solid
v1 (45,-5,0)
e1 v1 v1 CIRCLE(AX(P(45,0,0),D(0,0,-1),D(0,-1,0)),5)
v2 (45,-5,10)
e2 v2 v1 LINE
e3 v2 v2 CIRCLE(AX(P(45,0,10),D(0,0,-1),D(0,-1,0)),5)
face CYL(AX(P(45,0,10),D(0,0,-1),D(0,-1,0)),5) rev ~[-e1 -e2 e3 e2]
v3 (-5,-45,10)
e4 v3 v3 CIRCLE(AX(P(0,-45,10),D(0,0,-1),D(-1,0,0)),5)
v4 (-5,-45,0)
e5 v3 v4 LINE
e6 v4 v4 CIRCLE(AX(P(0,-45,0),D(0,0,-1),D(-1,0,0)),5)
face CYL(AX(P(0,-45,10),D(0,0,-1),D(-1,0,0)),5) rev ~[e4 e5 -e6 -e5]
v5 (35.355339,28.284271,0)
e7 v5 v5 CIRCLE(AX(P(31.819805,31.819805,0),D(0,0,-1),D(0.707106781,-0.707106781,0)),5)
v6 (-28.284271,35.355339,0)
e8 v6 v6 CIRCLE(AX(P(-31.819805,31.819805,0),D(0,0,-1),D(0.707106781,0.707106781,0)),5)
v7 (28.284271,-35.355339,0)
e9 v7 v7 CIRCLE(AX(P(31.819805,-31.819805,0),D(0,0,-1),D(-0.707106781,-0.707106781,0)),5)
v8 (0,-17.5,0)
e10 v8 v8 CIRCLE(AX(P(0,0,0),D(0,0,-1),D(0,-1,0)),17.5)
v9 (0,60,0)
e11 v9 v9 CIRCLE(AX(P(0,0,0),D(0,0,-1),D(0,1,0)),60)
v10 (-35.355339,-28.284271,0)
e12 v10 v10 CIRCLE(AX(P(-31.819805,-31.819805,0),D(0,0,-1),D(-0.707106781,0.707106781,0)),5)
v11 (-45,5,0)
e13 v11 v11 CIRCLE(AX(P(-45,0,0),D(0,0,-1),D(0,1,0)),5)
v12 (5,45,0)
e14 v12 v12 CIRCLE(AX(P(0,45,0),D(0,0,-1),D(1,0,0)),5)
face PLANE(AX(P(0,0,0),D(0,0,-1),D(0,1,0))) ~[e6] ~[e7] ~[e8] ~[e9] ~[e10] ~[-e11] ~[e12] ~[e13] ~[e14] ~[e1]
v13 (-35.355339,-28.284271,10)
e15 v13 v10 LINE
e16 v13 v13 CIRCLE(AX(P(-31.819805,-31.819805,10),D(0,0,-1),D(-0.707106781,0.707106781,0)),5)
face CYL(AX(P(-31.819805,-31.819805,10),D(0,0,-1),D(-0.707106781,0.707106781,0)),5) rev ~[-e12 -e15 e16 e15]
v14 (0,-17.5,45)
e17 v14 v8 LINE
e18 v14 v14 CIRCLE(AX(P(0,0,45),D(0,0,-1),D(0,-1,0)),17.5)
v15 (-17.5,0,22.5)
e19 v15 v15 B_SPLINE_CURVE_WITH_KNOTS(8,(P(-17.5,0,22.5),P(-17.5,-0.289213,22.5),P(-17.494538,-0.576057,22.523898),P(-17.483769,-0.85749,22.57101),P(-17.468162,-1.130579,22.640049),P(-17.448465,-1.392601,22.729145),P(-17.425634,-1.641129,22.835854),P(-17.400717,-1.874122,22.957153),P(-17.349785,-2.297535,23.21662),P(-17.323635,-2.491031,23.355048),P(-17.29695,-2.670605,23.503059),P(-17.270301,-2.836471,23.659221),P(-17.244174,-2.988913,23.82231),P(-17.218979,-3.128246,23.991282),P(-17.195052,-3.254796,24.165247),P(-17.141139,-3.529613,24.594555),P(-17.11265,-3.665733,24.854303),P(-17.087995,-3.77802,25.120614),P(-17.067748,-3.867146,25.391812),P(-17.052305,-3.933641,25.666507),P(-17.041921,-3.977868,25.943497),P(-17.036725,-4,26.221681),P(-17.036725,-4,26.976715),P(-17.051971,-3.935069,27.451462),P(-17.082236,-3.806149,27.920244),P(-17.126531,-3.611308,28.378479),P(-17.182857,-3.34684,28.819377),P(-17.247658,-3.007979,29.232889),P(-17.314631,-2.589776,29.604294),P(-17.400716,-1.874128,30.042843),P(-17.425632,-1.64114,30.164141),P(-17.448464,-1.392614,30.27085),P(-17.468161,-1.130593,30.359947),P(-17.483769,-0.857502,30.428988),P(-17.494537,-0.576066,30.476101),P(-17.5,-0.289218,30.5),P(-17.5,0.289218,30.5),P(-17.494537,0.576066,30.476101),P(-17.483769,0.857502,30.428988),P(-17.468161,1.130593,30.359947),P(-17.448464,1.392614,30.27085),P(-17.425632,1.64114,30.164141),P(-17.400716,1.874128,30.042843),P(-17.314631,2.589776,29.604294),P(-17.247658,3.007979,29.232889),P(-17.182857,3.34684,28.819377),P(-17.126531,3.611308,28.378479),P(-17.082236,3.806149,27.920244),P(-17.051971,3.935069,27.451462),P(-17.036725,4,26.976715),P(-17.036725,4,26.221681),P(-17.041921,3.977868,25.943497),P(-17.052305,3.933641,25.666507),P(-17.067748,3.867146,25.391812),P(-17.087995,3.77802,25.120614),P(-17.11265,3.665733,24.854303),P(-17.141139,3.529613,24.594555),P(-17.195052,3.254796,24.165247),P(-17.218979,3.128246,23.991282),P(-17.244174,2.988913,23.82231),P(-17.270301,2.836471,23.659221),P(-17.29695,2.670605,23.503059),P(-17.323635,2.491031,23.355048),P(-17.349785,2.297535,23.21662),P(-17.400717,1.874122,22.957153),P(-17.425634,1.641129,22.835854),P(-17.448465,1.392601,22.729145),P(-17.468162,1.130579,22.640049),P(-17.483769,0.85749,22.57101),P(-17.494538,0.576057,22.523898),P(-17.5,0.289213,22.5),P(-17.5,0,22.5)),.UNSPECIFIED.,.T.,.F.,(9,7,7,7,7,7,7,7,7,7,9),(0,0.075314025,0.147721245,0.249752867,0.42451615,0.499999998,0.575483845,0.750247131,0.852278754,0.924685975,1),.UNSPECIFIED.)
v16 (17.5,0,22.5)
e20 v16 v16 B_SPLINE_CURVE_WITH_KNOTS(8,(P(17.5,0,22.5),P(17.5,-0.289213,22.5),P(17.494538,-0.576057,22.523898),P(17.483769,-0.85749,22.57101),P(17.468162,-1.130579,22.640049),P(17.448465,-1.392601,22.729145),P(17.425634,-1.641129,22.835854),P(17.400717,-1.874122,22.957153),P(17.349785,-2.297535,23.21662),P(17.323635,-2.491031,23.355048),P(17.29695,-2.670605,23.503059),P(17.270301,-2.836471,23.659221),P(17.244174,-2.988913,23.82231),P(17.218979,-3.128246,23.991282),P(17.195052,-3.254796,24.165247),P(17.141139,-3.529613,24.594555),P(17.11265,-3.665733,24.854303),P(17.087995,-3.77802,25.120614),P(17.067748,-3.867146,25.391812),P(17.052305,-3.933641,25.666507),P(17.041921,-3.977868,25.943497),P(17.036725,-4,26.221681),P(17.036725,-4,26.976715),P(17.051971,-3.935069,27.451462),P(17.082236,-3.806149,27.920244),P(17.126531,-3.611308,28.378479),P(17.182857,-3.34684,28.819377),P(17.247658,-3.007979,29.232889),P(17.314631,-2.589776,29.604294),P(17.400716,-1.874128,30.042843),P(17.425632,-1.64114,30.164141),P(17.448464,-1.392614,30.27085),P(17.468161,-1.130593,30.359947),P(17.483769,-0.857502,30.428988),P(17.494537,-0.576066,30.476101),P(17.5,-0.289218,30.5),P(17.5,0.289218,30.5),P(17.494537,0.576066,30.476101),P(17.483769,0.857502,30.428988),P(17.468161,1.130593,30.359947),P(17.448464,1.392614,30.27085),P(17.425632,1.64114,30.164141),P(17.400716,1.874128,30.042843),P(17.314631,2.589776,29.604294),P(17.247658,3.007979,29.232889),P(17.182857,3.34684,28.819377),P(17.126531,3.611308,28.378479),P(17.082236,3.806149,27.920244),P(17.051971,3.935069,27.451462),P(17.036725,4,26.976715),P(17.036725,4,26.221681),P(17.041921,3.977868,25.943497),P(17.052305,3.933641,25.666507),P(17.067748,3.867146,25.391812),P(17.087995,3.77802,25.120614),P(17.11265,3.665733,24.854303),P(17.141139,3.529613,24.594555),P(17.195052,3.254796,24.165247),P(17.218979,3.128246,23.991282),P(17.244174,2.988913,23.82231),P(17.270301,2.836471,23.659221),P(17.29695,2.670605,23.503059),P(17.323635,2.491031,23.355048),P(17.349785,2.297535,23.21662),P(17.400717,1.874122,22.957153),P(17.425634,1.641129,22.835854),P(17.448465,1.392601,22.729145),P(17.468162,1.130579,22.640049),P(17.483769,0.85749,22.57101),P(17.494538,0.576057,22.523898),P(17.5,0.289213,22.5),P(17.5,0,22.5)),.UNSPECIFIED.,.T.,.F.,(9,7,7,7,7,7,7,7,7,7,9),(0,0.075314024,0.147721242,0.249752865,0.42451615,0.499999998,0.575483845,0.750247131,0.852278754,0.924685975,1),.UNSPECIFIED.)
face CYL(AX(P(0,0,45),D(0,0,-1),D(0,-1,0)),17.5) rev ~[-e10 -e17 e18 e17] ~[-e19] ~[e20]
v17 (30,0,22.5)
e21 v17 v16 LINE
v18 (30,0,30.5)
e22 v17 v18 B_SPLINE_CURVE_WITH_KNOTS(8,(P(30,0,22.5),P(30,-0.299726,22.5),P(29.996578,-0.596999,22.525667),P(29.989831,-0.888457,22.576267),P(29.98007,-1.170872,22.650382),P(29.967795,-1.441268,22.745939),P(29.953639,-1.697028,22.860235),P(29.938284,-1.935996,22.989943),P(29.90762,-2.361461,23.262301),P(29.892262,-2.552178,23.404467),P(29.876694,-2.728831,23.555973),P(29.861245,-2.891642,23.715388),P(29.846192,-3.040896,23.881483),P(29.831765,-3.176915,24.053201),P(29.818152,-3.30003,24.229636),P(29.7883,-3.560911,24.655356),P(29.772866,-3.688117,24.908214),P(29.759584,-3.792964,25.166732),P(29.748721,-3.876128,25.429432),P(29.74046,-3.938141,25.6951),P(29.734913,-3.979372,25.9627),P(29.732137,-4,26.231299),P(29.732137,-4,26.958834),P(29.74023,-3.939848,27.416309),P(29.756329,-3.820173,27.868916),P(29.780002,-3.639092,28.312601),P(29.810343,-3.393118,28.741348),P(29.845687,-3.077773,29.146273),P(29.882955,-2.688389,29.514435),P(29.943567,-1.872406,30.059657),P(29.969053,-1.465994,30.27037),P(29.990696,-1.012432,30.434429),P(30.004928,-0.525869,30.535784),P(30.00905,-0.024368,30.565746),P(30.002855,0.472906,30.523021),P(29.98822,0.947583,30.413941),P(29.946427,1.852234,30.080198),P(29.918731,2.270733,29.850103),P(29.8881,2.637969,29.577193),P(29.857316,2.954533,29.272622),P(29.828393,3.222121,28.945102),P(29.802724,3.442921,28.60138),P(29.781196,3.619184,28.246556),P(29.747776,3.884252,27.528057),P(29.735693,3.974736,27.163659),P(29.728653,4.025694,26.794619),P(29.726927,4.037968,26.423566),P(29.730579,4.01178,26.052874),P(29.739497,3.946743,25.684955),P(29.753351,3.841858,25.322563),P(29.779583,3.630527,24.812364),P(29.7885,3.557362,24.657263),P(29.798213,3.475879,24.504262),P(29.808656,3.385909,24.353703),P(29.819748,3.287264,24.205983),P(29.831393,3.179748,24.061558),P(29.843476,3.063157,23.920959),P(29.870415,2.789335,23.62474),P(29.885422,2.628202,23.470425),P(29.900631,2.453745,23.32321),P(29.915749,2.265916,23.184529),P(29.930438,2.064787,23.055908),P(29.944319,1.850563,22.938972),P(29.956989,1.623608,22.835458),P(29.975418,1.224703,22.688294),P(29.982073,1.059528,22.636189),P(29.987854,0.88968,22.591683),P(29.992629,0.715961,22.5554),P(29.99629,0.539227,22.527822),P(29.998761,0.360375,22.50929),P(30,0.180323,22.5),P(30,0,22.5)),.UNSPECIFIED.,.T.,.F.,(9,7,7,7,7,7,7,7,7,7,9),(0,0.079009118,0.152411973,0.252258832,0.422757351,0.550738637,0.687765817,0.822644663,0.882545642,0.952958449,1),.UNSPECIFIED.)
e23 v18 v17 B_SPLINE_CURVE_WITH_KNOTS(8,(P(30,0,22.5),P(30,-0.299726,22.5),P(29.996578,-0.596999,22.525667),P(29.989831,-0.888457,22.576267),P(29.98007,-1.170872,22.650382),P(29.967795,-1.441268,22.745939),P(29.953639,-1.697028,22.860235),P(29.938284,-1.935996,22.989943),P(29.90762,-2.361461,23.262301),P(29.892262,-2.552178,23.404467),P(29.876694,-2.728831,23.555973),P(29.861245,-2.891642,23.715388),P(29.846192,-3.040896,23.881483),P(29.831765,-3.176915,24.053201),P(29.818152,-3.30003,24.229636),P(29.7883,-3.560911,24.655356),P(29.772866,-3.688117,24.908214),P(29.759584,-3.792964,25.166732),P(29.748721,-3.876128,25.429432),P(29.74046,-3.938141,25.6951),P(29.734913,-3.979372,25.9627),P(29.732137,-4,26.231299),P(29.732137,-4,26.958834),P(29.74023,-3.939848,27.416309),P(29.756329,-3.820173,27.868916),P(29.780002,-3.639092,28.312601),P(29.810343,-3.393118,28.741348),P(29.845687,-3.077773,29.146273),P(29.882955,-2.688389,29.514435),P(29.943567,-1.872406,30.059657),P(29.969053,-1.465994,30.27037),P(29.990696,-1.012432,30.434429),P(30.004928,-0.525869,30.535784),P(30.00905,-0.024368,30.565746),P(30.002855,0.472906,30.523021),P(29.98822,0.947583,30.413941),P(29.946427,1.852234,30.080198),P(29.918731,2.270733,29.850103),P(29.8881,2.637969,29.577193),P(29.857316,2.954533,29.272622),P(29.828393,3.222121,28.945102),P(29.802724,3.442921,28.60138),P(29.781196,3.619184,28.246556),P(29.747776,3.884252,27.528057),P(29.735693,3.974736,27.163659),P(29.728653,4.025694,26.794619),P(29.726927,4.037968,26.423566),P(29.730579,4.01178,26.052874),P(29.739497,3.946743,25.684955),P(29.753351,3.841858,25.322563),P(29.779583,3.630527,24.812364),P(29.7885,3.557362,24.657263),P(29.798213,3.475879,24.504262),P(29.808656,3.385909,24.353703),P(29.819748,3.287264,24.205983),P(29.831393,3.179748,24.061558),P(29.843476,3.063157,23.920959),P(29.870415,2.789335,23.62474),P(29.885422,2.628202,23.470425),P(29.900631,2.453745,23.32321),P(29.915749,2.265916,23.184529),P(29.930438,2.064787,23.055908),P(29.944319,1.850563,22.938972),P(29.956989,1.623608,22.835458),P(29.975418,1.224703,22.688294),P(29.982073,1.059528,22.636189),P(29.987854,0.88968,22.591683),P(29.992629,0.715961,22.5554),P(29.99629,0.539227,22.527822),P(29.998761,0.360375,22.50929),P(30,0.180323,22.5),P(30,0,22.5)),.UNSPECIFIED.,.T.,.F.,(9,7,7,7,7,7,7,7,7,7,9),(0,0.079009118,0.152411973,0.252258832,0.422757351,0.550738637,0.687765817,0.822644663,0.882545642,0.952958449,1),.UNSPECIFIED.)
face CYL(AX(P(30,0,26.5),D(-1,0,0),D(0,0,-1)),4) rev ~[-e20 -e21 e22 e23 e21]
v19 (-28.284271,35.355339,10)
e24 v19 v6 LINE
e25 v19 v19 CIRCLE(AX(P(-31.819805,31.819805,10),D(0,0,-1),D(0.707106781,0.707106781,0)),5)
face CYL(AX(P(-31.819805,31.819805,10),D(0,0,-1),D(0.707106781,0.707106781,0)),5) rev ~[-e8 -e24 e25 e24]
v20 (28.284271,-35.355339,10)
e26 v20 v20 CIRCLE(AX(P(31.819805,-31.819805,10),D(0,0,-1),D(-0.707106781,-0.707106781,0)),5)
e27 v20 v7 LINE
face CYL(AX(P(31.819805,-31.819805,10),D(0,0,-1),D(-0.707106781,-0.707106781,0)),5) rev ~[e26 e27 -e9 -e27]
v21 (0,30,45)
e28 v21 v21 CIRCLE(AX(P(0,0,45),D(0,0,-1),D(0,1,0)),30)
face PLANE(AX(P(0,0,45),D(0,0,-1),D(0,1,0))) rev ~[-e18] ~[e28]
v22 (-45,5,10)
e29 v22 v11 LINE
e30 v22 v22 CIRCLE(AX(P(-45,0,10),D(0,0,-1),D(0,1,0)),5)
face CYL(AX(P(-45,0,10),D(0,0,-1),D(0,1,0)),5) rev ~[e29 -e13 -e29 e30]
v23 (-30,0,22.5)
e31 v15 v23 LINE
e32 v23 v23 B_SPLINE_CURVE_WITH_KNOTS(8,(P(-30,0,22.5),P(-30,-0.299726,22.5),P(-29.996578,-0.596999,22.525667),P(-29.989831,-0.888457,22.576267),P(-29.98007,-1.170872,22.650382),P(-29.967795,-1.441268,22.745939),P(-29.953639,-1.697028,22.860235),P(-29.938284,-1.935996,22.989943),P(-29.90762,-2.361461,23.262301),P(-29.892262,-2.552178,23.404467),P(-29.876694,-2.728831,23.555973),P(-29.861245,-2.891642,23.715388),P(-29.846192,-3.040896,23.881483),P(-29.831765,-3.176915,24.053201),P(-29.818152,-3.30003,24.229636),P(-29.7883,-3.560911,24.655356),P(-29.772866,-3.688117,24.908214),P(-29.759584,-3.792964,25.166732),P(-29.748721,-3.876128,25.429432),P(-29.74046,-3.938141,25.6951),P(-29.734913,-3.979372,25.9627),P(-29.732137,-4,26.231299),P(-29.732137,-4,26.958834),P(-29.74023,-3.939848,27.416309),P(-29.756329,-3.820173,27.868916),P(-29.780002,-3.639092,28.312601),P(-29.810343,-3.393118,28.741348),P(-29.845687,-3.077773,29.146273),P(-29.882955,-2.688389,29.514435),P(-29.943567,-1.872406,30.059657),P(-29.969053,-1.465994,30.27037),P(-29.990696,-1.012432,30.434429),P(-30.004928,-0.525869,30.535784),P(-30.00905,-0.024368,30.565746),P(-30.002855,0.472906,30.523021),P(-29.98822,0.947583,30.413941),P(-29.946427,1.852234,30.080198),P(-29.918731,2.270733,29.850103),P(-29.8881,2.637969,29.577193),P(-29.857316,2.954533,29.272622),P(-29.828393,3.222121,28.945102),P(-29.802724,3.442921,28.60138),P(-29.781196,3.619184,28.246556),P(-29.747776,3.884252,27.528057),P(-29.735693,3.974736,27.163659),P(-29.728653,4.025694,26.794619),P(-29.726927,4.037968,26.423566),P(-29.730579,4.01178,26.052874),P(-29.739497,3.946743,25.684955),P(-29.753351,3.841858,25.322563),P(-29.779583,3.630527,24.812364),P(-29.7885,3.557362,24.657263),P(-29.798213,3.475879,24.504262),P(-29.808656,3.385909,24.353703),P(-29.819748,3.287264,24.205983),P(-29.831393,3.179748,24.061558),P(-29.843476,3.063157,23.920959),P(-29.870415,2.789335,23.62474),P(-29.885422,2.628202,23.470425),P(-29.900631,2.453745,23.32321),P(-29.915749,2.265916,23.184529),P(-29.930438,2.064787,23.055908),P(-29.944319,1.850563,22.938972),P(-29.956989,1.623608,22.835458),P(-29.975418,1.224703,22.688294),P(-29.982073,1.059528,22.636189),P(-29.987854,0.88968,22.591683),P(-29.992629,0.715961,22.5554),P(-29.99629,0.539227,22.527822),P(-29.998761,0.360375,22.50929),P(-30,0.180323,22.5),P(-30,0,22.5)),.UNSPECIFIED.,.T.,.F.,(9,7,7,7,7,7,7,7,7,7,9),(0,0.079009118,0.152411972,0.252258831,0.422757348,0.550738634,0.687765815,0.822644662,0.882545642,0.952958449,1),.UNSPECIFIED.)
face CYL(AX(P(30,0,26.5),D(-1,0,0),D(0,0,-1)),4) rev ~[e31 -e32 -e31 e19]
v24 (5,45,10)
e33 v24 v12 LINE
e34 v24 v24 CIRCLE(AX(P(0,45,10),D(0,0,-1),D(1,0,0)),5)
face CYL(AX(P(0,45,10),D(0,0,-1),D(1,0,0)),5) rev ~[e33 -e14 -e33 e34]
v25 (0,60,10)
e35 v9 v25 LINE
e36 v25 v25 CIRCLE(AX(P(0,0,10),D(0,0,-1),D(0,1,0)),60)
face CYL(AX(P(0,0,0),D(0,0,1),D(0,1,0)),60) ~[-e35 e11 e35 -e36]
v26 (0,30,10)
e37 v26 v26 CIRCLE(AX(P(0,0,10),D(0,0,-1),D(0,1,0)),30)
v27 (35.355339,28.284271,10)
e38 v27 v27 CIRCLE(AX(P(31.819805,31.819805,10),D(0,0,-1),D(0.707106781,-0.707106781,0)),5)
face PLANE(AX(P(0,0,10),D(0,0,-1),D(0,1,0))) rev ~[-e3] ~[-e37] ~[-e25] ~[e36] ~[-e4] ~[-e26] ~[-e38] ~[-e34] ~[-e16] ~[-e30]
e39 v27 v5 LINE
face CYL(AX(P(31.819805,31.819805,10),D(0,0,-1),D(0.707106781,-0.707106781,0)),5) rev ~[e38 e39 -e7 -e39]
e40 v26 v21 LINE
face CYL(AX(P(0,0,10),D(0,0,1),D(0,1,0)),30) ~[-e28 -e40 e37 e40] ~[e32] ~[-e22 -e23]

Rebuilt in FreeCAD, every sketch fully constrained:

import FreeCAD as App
import Part
import Sketcher

V = App.Vector
Q = App.Units.Quantity

doc = App.newDocument("Part")
body = doc.addObject("PartDesign::Body", "Body")

# Sketch on YZ plane
sketch1 = body.newObject("Sketcher::SketchObject", "Sketch")
sketch1.AttachmentSupport = (doc.getObject("YZ_Plane"), [""])
sketch1.MapMode = "FlatFace"
sketch1.addGeometry([
    Part.LineSegment(V(30, 45, 0), V(0, 45, 0)),  # 0
    Part.LineSegment(V(0, 45, 0), V(0, 0, 0)),  # 1
    Part.LineSegment(V(0, 0, 0), V(60, 0, 0)),  # 2
    Part.LineSegment(V(60, 0, 0), V(60, 10, 0)),  # 3
    Part.LineSegment(V(60, 10, 0), V(30, 10, 0)),  # 4
    Part.LineSegment(V(30, 10, 0), V(30, 45, 0)),  # 5
], False)
sketch1.addConstraint([
    Sketcher.Constraint("Coincident", 0, 2, 1, 1),
    Sketcher.Constraint("Coincident", 1, 2, 2, 1),
    Sketcher.Constraint("Coincident", 2, 2, 3, 1),
    Sketcher.Constraint("Coincident", 3, 2, 4, 1),
    Sketcher.Constraint("Coincident", 4, 2, 5, 1),
    Sketcher.Constraint("Coincident", 5, 2, 0, 1),
    Sketcher.Constraint("Horizontal", 0),
    Sketcher.Constraint("Vertical", 1),
    Sketcher.Constraint("Horizontal", 2),
    Sketcher.Constraint("Vertical", 3),
    Sketcher.Constraint("Horizontal", 4),
    Sketcher.Constraint("Vertical", 5),
    Sketcher.Constraint("Coincident", 1, 2, -1, 1),
    Sketcher.Constraint("Equal", 0, 4),
    Sketcher.Constraint("DistanceX", 0, 2, 0, 1, Q("30 mm")),
    Sketcher.Constraint("DistanceY", 3, 1, 3, 2, Q("10 mm")),
    Sketcher.Constraint("DistanceY", 5, 1, 5, 2, Q("35 mm")),
])
revolution = body.newObject("PartDesign::Revolution", "Revolution")
revolution.Profile = sketch1
revolution.ReferenceAxis = (sketch1, ["V_Axis"])
revolution.Angle = 360

# Sketch on XY plane
sketch2 = body.newObject("Sketcher::SketchObject", "Sketch001")
sketch2.AttachmentSupport = (doc.getObject("XY_Plane"), [""])
sketch2.MapMode = "FlatFace"
sketch2.AttachmentOffset = App.Placement(V(0, 0, 45), App.Rotation())
sketch2.addGeometry(Part.Circle(V(0, 0, 0), V(0, 0, 1), 18), False)
sketch2.addConstraint([
    Sketcher.Constraint("Coincident", 0, 3, -1, 1),
    Sketcher.Constraint("Diameter", 0, Q("35 mm")),
])
doc.recompute()
hole = body.newObject("PartDesign::Hole", "Hole")
hole.Profile = sketch2
hole.ThreadType = "None"
hole.Diameter = 35
hole.DepthType = "ThroughAll"

# Sketch on XY plane
sketch3 = body.newObject("Sketcher::SketchObject", "Sketch002")
sketch3.AttachmentSupport = (doc.getObject("XY_Plane"), [""])
sketch3.MapMode = "FlatFace"
sketch3.AttachmentOffset = App.Placement(V(0, 0, 10), App.Rotation())
sketch3.addGeometry(Part.Circle(V(45, 0, 0), V(0, 0, 1), 5), False)
sketch3.addConstraint([
    Sketcher.Constraint("PointOnObject", 0, 3, -1),
    Sketcher.Constraint("Diameter", 0, Q("10 mm")),
    Sketcher.Constraint("DistanceX", -1, 1, 0, 3, Q("45 mm")),
])
doc.recompute()
hole2 = body.newObject("PartDesign::Hole", "Hole001")
hole2.Profile = sketch3
hole2.ThreadType = "None"
hole2.Diameter = 10
hole2.DepthType = "ThroughAll"
doc.recompute()

polarpattern = body.newObject("PartDesign::PolarPattern", "PolarPattern")
polarpattern.Originals = [hole2]
polarpattern.Axis = (doc.getObject("Z_Axis"), [""])
polarpattern.Angle = 360
polarpattern.Occurrences = 8
body.Tip = polarpattern

# Sketch on YZ plane
sketch4 = body.newObject("Sketcher::SketchObject", "Sketch003")
sketch4.AttachmentSupport = (doc.getObject("YZ_Plane"), [""])
sketch4.MapMode = "FlatFace"
sketch4.AttachmentOffset = App.Placement(V(0, 0, 30), App.Rotation())
sketch4.addGeometry(Part.Circle(V(0, 26.5, 0), V(0, 0, 1), 4), False)
sketch4.addConstraint([
    Sketcher.Constraint("PointOnObject", 0, 3, -2),
    Sketcher.Constraint("Diameter", 0, Q("8 mm")),
    Sketcher.Constraint("DistanceY", -1, 1, 0, 3, Q("26.5 mm")),
])
doc.recompute()
hole3 = body.newObject("PartDesign::Hole", "Hole002")
hole3.Profile = sketch4
hole3.ThreadType = "None"
hole3.Diameter = 8
hole3.DepthType = "ThroughAll"

doc.recompute()
